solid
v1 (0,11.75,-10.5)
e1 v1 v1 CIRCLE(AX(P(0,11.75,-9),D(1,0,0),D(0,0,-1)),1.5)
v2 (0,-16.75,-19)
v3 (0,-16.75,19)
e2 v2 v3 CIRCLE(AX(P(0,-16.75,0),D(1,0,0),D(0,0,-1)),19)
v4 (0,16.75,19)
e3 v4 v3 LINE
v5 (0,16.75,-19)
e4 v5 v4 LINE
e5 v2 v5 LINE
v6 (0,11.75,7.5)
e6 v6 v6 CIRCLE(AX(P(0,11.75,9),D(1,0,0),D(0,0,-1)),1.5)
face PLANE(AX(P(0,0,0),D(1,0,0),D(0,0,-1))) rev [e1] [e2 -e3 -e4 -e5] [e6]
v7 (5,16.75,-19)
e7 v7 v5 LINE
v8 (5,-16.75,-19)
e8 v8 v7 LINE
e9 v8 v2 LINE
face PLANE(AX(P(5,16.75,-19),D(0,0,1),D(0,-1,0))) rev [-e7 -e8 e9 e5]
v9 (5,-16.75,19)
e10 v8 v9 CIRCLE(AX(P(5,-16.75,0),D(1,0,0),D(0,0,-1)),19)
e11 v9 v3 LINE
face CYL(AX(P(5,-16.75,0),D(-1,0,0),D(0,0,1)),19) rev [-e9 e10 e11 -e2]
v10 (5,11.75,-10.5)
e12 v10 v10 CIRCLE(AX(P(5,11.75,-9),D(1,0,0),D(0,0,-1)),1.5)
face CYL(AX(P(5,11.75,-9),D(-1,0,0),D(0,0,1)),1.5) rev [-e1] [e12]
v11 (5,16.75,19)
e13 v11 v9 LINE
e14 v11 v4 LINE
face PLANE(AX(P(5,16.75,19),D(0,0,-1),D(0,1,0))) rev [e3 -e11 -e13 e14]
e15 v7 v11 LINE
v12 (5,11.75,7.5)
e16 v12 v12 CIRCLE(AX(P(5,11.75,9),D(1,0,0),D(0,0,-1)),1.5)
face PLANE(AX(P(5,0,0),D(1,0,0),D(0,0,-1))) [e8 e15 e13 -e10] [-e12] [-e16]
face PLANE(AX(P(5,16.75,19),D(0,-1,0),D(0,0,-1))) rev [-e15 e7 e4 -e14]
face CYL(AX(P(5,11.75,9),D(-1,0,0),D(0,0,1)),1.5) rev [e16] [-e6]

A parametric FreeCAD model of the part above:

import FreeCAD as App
import Part
import Sketcher
Q = App.Units.Quantity


def add_polygon(sketch, points):
    """Adds a closed chain of lines whose ends are joined by coincident constraints."""
    first, n = sketch.GeometryCount, len(points)
    for a, b in zip(points, points[1:] + points[:1]):
        sketch.addGeometry(Part.LineSegment(App.Vector(*a, 0), App.Vector(*b, 0)), False)
    for i in range(n):
        sketch.addConstraint(Sketcher.Constraint("Coincident", first + i, 2, first + (i + 1) % n, 1))

doc = App.newDocument("Part")
body = doc.addObject("PartDesign::Body", "Body")

sketch1 = body.newObject("Sketcher::SketchObject", "Sketch")
sketch1.AttachmentSupport = (doc.getObject("YZ_Plane"), [""])
sketch1.MapMode = "FlatFace"
add_polygon(sketch1, [(17, 19), (-17, 19), (-17, -19), (17, -19)])
sketch1.addConstraint(Sketcher.Constraint("Horizontal", 0))
sketch1.addConstraint(Sketcher.Constraint("Vertical", 1))
sketch1.addConstraint(Sketcher.Constraint("Horizontal", 2))
sketch1.addConstraint(Sketcher.Constraint("Vertical", 3))
sketch1.addConstraint(Sketcher.Constraint("Symmetric", 0, 2, 2, 2, -1, 1))
sketch1.addConstraint(Sketcher.Constraint("DistanceY", 1, 2, 1, 1, Q("38 mm")))
sketch1.addConstraint(Sketcher.Constraint("DistanceX", 0, 2, 0, 1, Q("33.5 mm")))
pad1 = body.newObject("PartDesign::Pad", "Pad")
pad1.Profile = sketch1
pad1.Length = 5

sketch2 = body.newObject("Sketcher::SketchObject", "Sketch001")
sketch2.AttachmentSupport = (doc.getObject("YZ_Plane"), [""])
sketch2.MapMode = "FlatFace"
sketch2.addGeometry(Part.Circle(App.Vector(-16.8, 0, 0), App.Vector(0, 0, 1), 19), False)
sketch2.addGeometry(Part.Circle(App.Vector(11.8, 9, 0), App.Vector(0, 0, 1), 1.5), False)
sketch2.addGeometry(Part.Circle(App.Vector(11.8, -9, 0), App.Vector(0, 0, 1), 1.5), False)
sketch2.addConstraint(Sketcher.Constraint("Equal", 1, 2))
sketch2.addConstraint(Sketcher.Constraint("Symmetric", 1, 3, 2, 3, -1))
sketch2.addConstraint(Sketcher.Constraint("PointOnObject", 0, 3, -1))
sketch2.addConstraint(Sketcher.Constraint("Diameter", 0, Q("38 mm")))
sketch2.addConstraint(Sketcher.Constraint("Diameter", 1, Q("3 mm")))
sketch2.addConstraint(Sketcher.Constraint("DistanceY", -1, 1, 1, 3, Q("9 mm")))
sketch2.addConstraint(Sketcher.Constraint("DistanceX", 0, 3, 1, 3, Q("28.5 mm")))
sketch2.addConstraint(Sketcher.Constraint("DistanceX", 0, 3, -1, 1, Q("16.75 mm")))
pocket1 = body.newObject("PartDesign::Pocket", "Pocket")
pocket1.Profile = sketch2
pocket1.Type = "ThroughAll"
pocket1.Reversed = True

doc.recompute()
